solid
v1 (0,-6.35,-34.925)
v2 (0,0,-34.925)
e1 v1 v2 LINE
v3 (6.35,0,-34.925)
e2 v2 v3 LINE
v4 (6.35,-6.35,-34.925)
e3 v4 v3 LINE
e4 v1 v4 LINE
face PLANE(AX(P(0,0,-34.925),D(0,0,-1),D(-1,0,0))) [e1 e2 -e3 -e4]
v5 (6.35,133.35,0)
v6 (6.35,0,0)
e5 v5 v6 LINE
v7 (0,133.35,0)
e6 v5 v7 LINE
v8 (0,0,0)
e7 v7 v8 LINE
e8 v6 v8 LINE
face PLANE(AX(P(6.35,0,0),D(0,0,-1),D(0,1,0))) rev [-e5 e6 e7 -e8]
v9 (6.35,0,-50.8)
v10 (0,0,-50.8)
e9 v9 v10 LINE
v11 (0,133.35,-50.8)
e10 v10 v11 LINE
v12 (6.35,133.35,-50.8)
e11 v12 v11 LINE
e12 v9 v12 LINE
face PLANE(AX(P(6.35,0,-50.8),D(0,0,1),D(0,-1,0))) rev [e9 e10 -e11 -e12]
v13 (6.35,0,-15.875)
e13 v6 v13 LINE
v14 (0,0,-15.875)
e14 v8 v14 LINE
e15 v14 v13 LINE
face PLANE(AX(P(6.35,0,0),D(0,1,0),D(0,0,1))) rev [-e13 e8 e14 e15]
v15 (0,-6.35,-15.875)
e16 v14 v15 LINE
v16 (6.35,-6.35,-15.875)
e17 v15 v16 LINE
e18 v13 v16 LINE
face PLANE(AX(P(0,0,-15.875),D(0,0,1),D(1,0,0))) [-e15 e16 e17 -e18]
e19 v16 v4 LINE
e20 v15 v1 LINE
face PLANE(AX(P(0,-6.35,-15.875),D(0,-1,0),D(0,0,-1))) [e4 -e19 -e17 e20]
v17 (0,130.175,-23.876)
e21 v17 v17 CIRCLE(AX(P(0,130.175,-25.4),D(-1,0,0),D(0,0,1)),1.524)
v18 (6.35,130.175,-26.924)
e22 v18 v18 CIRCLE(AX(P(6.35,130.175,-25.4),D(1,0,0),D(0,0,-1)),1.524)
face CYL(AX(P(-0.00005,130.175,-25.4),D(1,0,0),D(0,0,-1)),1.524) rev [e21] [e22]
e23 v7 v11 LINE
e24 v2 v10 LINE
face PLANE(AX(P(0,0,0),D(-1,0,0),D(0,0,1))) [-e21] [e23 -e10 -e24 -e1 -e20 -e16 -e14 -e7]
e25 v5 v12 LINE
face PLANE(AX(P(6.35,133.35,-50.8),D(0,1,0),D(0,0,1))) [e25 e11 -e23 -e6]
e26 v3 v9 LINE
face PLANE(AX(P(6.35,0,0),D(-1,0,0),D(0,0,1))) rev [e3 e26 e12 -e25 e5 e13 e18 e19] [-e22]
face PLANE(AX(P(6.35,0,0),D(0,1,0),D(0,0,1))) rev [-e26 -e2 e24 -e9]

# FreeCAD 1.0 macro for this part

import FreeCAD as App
import Part
import Sketcher

V = App.Vector
Q = App.Units.Quantity

doc = App.newDocument("Part")
body = doc.addObject("PartDesign::Body", "Body")

sketch1 = body.newObject("Sketcher::SketchObject", "Sketch")
sketch1.AttachmentSupport = (doc.getObject("YZ_Plane"), [""])
sketch1.MapMode = "FlatFace"
sketch1.addGeometry(Part.LineSegment(V(127, 0, 0), V(0, 0, 0)), False)
sketch1.addGeometry(Part.LineSegment(V(0, 0, 0), V(0, -51, 0)), False)
sketch1.addGeometry(Part.LineSegment(V(0, -51, 0), V(127, -51, 0)), False)
sketch1.addGeometry(Part.LineSegment(V(127, -51, 0), V(127, 0, 0)), False)
sketch1.addConstraint(Sketcher.Constraint("Coincident", 0, 2, 1, 1))
sketch1.addConstraint(Sketcher.Constraint("Coincident", 1, 2, 2, 1))
sketch1.addConstraint(Sketcher.Constraint("Coincident", 2, 2, 3, 1))
sketch1.addConstraint(Sketcher.Constraint("Coincident", 3, 2, 0, 1))
sketch1.addConstraint(Sketcher.Constraint("Horizontal", 0))
sketch1.addConstraint(Sketcher.Constraint("Vertical", 1))
sketch1.addConstraint(Sketcher.Constraint("Horizontal", 2))
sketch1.addConstraint(Sketcher.Constraint("Vertical", 3))
sketch1.addConstraint(Sketcher.Constraint("Coincident", 0, 2, -1, 1))
sketch1.addConstraint(Sketcher.Constraint("DistanceX", 0, 2, 0, 1, Q("5 in")))
sketch1.addConstraint(Sketcher.Constraint("DistanceY", 1, 2, 1, 1, Q("2 in")))
pad1 = body.newObject("PartDesign::Pad", "Pad")
pad1.Profile = sketch1
pad1.Length = Q("0.25 in")

sketch2 = body.newObject("Sketcher::SketchObject", "Sketch001")
sketch2.AttachmentSupport = (doc.getObject("YZ_Plane"), [""])
sketch2.MapMode = "FlatFace"
sketch2.AttachmentOffset = App.Placement(V(0, 0, 0.25 * 25.4), App.Rotation())
sketch2.addGeometry(Part.LineSegment(V(0, -16, 0), V(-6, -16, 0)), False)
sketch2.addGeometry(Part.LineSegment(V(-6, -16, 0), V(-6, -35, 0)), False)
sketch2.addGeometry(Part.LineSegment(V(-6, -35, 0), V(0, -35, 0)), False)
sketch2.addGeometry(Part.LineSegment(V(0, -35, 0), V(0, -16, 0)), False)
sketch2.addConstraint(Sketcher.Constraint("Coincident", 0, 2, 1, 1))
sketch2.addConstraint(Sketcher.Constraint("Coincident", 1, 2, 2, 1))
sketch2.addConstraint(Sketcher.Constraint("Coincident", 2, 2, 3, 1))
sketch2.addConstraint(Sketcher.Constraint("Coincident", 3, 2, 0, 1))
sketch2.addConstraint(Sketcher.Constraint("Horizontal", 0))
sketch2.addConstraint(Sketcher.Constraint("Vertical", 1))
sketch2.addConstraint(Sketcher.Constraint("Horizontal", 2))
sketch2.addConstraint(Sketcher.Constraint("Vertical", 3))
sketch2.addConstraint(Sketcher.Constraint("PointOnObject", 2, 2, -2))
sketch2.addConstraint(Sketcher.Constraint("DistanceX", 0, 2, 0, 1, Q("0.25 in")))
sketch2.addConstraint(Sketcher.Constraint("DistanceY", 1, 2, 1, 1, Q("0.75 in")))
sketch2.addConstraint(Sketcher.Constraint("DistanceY", 0, 2, -1, 1, Q("0.625 in")))
pad2 = body.newObject("PartDesign::Pad", "Pad001")
pad2.Profile = sketch2
pad2.Length = Q("0.25 in")
pad2.Reversed = True

sketch3 = body.newObject("Sketcher::SketchObject", "Sketch002")
sketch3.AttachmentSupport = (doc.getObject("YZ_Plane"), [""])
sketch3.MapMode = "FlatFace"
sketch3.addGeometry(Part.LineSegment(V(133, -51, 0), V(127, -51, 0)), False)
sketch3.addGeometry(Part.LineSegment(V(127, -51, 0), V(127, 0, 0)), False)
sketch3.addGeometry(Part.LineSegment(V(127, 0, 0), V(133, 0, 0)), False)
sketch3.addGeometry(Part.LineSegment(V(133, 0, 0), V(133, -51, 0)), False)
sketch3.addConstraint(Sketcher.Constraint("Coincident", 0, 2, 1, 1))
sketch3.addConstraint(Sketcher.Constraint("Coincident", 1, 2, 2, 1))
sketch3.addConstraint(Sketcher.Constraint("Coincident", 2, 2, 3, 1))
sketch3.addConstraint(Sketcher.Constraint("Coincident", 3, 2, 0, 1))
sketch3.addConstraint(Sketcher.Constraint("Horizontal", 0))
sketch3.addConstraint(Sketcher.Constraint("Vertical", 1))
sketch3.addConstraint(Sketcher.Constraint("Horizontal", 2))
sketch3.addConstraint(Sketcher.Constraint("Vertical", 3))
sketch3.addConstraint(Sketcher.Constraint("PointOnObject", 1, 2, -1))
sketch3.addConstraint(Sketcher.Constraint("DistanceY", 1, 1, 1, 2, Q("2 in")))
sketch3.addConstraint(Sketcher.Constraint("DistanceX", -1, 1, 0, 2, Q("5 in")))
sketch3.addConstraint(Sketcher.Constraint("DistanceX", 0, 2, 0, 1, Q("0.25 in")))
pad3 = body.newObject("PartDesign::Pad", "Pad002")
pad3.Profile = sketch3
pad3.Length = Q("0.25 in")

sketch4 = body.newObject("Sketcher::SketchObject", "Sketch003")
sketch4.AttachmentSupport = (doc.getObject("YZ_Plane"), [""])
sketch4.MapMode = "FlatFace"
sketch4.AttachmentOffset = App.Placement(V(0, 0, 0.25 * 25.4), App.Rotation())
sketch4.addGeometry(Part.Circle(V(130.2, -25.4, 0), V(0, 0, 1), 1.5), False)
sketch4.addConstraint(Sketcher.Constraint("Diameter", 0, Q("0.12 in")))
sketch4.addConstraint(Sketcher.Constraint("DistanceY", 0, 3, -1, 1, Q("1 in")))
sketch4.addConstraint(Sketcher.Constraint("DistanceX", -1, 1, 0, 3, Q("5.125 in")))
pocket1 = body.newObject("PartDesign::Pocket", "Pocket")
pocket1.Profile = sketch4
pocket1.Type = "ThroughAll"

doc.recompute()
